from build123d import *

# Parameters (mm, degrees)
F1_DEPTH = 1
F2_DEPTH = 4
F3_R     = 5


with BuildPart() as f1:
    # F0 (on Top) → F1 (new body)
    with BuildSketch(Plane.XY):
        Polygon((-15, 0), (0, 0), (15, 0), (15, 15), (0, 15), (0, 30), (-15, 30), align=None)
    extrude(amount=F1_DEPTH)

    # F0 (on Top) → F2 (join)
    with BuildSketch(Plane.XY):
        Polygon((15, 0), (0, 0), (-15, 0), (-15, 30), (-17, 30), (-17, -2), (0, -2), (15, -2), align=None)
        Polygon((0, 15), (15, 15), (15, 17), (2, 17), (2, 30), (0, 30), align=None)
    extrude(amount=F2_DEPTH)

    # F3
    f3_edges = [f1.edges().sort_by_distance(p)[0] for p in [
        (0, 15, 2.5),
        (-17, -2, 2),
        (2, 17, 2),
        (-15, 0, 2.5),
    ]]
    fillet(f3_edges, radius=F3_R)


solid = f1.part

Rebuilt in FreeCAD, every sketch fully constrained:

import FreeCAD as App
import Part
import Sketcher
Q = App.Units.Quantity


def edges_at(feature, points):
    """Names of the edges that pass closest to the given points."""
    edges = feature.Shape.Edges
    near = lambda p: min(range(len(edges)), key=lambda i: edges[i].distToShape(Part.Vertex(*p))[0])
    return sorted({f"Edge{near(p) + 1}" for p in points})


def add_polygon(sketch, points):
    """Adds a closed chain of lines whose ends are joined by coincident constraints."""
    first, n = sketch.GeometryCount, len(points)
    for a, b in zip(points, points[1:] + points[:1]):
        sketch.addGeometry(Part.LineSegment(App.Vector(*a, 0), App.Vector(*b, 0)), False)
    for i in range(n):
        sketch.addConstraint(Sketcher.Constraint("Coincident", first + i, 2, first + (i + 1) % n, 1))

doc = App.newDocument("Part")
body = doc.addObject("PartDesign::Body", "Body")

sketch1 = doc.addObject("Sketcher::SketchObject", "Sketch")
body.addObject(sketch1)
sketch1.AttachmentSupport = (doc.XY_Plane, [""])
sketch1.MapMode = "FlatFace"
add_polygon(sketch1, [(-15, 0), (15, 0), (15, 15), (0, 15), (0, 30), (-15, 30)])
sketch1.addConstraint(Sketcher.Constraint("Horizontal", 0))
sketch1.addConstraint(Sketcher.Constraint("Vertical", 1))
sketch1.addConstraint(Sketcher.Constraint("Horizontal", 2))
sketch1.addConstraint(Sketcher.Constraint("Vertical", 3))
sketch1.addConstraint(Sketcher.Constraint("Horizontal", 4))
sketch1.addConstraint(Sketcher.Constraint("Vertical", 5))
sketch1.addConstraint(Sketcher.Constraint("Symmetric", 0, 2, 5, 2, -1, 1))
sketch1.addConstraint(Sketcher.Constraint("PointOnObject", 2, 2, -2))
sketch1.addConstraint(Sketcher.Constraint("Equal", 4, 1))
sketch1.addConstraint(Sketcher.Constraint("Equal", 1, 3))
sketch1.addConstraint(Sketcher.Constraint("DistanceX", 0, 1, 0, 2, Q("30 mm")))
pad1 = doc.addObject("PartDesign::Pad", "Pad")
body.addObject(pad1)
pad1.Profile = sketch1
pad1.Length = 1

sketch2 = doc.addObject("Sketcher::SketchObject", "Sketch001")
body.addObject(sketch2)
sketch2.AttachmentSupport = (doc.XY_Plane, [""])
sketch2.MapMode = "FlatFace"
add_polygon(sketch2, [(15, 0), (-15, 0), (-15, 30), (-17, 30), (-17, -2), (15, -2)])
add_polygon(sketch2, [(0, 15), (15, 15), (15, 17), (2, 17), (2, 30), (0, 30)])
sketch2.addConstraint(Sketcher.Constraint("Horizontal", 0))
sketch2.addConstraint(Sketcher.Constraint("Vertical", 1))
sketch2.addConstraint(Sketcher.Constraint("Horizontal", 2))
sketch2.addConstraint(Sketcher.Constraint("Vertical", 3))
sketch2.addConstraint(Sketcher.Constraint("Horizontal", 4))
sketch2.addConstraint(Sketcher.Constraint("Vertical", 5))
sketch2.addConstraint(Sketcher.Constraint("Horizontal", 6))
sketch2.addConstraint(Sketcher.Constraint("Vertical", 7))
sketch2.addConstraint(Sketcher.Constraint("Horizontal", 8))
sketch2.addConstraint(Sketcher.Constraint("Vertical", 9))
sketch2.addConstraint(Sketcher.Constraint("Horizontal", 10))
sketch2.addConstraint(Sketcher.Constraint("Vertical", 11))
sketch2.addConstraint(Sketcher.Constraint("Symmetric", 0, 2, 5, 2, -1, 1))
sketch2.addConstraint(Sketcher.Constraint("PointOnObject", 10, 2, -2))
sketch2.addConstraint(Sketcher.Constraint("Horizontal", 2, 2, 9, 2))
sketch2.addConstraint(Sketcher.Constraint("Vertical", 5, 2, 6, 2))
sketch2.addConstraint(Sketcher.Constraint("Equal", 2, 10))
sketch2.addConstraint(Sketcher.Constraint("Equal", 0, 1))
sketch2.addConstraint(Sketcher.Constraint("Equal", 4, 3))
sketch2.addConstraint(Sketcher.Constraint("Equal", 5, 7))
sketch2.addConstraint(Sketcher.Constraint("Equal", 8, 9))
sketch2.addConstraint(Sketcher.Constraint("DistanceX", 0, 2, 0, 1, Q("30 mm")))
sketch2.addConstraint(Sketcher.Constraint("DistanceX", 2, 2, 2, 1, Q("2 mm")))
pad2 = doc.addObject("PartDesign::Pad", "Pad001")
body.addObject(pad2)
pad2.Profile = sketch2
pad2.Length = 4
doc.recompute()

fillet = doc.addObject("PartDesign::Fillet", "Fillet")
body.addObject(fillet)
fillet.Base = (pad2, edges_at(pad2, [
    (0, 15, 2.5),
    (-17, -2, 2),
    (2, 17, 2),
    (-15, 0, 2.5),
]))
fillet.Radius = 5

doc.recompute()
